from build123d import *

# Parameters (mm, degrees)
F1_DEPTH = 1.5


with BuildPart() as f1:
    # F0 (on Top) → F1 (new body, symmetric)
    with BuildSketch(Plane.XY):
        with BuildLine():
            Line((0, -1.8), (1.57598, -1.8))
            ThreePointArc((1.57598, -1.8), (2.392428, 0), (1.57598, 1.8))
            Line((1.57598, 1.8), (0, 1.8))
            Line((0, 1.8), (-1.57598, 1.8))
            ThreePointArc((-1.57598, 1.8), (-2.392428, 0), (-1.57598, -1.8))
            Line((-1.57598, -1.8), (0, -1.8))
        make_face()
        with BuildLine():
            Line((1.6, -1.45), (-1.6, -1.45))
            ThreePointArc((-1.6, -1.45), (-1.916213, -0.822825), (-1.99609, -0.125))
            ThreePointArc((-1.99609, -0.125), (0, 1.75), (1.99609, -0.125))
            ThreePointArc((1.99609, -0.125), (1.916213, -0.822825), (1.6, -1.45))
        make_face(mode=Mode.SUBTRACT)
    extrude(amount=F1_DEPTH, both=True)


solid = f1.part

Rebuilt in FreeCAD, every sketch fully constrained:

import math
import FreeCAD as App
import Part
import Sketcher
from FreeCAD import Vector

doc = App.newDocument("Part")
body = doc.addObject("PartDesign::Body", "Body")

# Sketch on XY plane
sketch1 = body.newObject("Sketcher::SketchObject", "Sketch")
sketch1.AttachmentSupport = (doc.getObject("XY_Plane"), [""])
sketch1.MapMode = "FlatFace"
sketch1.addGeometry([
    Part.ArcOfCircle(Part.Circle(Vector(-0.000001, 0, 0), Vector(0, 0, 1), 2.392429), math.radians(-48.796398), math.radians(48.796398)),  # 0
    Part.LineSegment(Vector(1.57598, 1.8, 0), Vector(-1.57598, 1.8, 0)),  # 1
    Part.ArcOfCircle(Part.Circle(Vector(0.000001, 0, 0), Vector(0, 0, 1), 2.392429), math.radians(131.203602), math.radians(228.796398)),  # 2
    Part.LineSegment(Vector(-1.57598, -1.8, 0), Vector(1.57598, -1.8, 0)),  # 3
    Part.ArcOfCircle(Part.Circle(Vector(0.000002, -0.250001, 0), Vector(0, 0, 1), 1.999998), math.radians(-36.869924), math.radians(3.583343)),  # 4
    Part.LineSegment(Vector(1.6, -1.45, 0), Vector(-1.6, -1.45, 0)),  # 5
    Part.ArcOfCircle(Part.Circle(Vector(-0.000002, -0.250001, 0), Vector(0, 0, 1), 1.999998), math.radians(176.416657), math.radians(216.869924)),  # 6
    Part.ArcOfCircle(Part.Circle(Vector(0, -0.25, 0), Vector(0, 0, 1), 2), math.radians(3.583324), math.radians(176.416676)),  # 7
], False)
sketch1.addConstraint([
    Sketcher.Constraint("Coincident", 0, 2, 1, 1),
    Sketcher.Constraint("Coincident", 1, 2, 2, 1),
    Sketcher.Constraint("Coincident", 2, 2, 3, 1),
    Sketcher.Constraint("Coincident", 3, 2, 0, 1),
    Sketcher.Constraint("Coincident", 4, 1, 5, 1),
    Sketcher.Constraint("Coincident", 5, 2, 6, 2),
    Sketcher.Constraint("Tangent", 6, 1, 7, 2),
    Sketcher.Constraint("Tangent", 7, 1, 4, 2),
    Sketcher.Constraint("Horizontal", 1),
    Sketcher.Constraint("Horizontal", 3),
    Sketcher.Constraint("Horizontal", 5),
    Sketcher.Constraint("Coincident", 0, 3, -1, 1),
    Sketcher.Constraint("Coincident", 2, 3, -1, 1),
    Sketcher.Constraint("Coincident", 6, 3, 4, 3),
    Sketcher.Constraint("Equal", 0, 2),
    Sketcher.Constraint("Symmetric", 6, 1, 7, 1, -2),
    Sketcher.Constraint("Vertical", 1, 2, 2, 2),
    Sketcher.Constraint("Radius", 7, 2.0),
    Sketcher.Constraint("DistanceX", 5, 2, 5, 1, 3.2),
    Sketcher.Constraint("DistanceY", -1, 1, 0, 2, 1.8),
    Sketcher.Constraint("DistanceY", 4, 3, -1, 1, 0.250001),
    Sketcher.Constraint("Radius", 0, 2.392429),
    Sketcher.Constraint("DistanceY", 6, 1, -1, 1, 0.125),
])
pad1 = body.newObject("PartDesign::Pad", "Pad")
pad1.Profile = sketch1
pad1.Length = 3
pad1.Midplane = True

doc.recompute()
